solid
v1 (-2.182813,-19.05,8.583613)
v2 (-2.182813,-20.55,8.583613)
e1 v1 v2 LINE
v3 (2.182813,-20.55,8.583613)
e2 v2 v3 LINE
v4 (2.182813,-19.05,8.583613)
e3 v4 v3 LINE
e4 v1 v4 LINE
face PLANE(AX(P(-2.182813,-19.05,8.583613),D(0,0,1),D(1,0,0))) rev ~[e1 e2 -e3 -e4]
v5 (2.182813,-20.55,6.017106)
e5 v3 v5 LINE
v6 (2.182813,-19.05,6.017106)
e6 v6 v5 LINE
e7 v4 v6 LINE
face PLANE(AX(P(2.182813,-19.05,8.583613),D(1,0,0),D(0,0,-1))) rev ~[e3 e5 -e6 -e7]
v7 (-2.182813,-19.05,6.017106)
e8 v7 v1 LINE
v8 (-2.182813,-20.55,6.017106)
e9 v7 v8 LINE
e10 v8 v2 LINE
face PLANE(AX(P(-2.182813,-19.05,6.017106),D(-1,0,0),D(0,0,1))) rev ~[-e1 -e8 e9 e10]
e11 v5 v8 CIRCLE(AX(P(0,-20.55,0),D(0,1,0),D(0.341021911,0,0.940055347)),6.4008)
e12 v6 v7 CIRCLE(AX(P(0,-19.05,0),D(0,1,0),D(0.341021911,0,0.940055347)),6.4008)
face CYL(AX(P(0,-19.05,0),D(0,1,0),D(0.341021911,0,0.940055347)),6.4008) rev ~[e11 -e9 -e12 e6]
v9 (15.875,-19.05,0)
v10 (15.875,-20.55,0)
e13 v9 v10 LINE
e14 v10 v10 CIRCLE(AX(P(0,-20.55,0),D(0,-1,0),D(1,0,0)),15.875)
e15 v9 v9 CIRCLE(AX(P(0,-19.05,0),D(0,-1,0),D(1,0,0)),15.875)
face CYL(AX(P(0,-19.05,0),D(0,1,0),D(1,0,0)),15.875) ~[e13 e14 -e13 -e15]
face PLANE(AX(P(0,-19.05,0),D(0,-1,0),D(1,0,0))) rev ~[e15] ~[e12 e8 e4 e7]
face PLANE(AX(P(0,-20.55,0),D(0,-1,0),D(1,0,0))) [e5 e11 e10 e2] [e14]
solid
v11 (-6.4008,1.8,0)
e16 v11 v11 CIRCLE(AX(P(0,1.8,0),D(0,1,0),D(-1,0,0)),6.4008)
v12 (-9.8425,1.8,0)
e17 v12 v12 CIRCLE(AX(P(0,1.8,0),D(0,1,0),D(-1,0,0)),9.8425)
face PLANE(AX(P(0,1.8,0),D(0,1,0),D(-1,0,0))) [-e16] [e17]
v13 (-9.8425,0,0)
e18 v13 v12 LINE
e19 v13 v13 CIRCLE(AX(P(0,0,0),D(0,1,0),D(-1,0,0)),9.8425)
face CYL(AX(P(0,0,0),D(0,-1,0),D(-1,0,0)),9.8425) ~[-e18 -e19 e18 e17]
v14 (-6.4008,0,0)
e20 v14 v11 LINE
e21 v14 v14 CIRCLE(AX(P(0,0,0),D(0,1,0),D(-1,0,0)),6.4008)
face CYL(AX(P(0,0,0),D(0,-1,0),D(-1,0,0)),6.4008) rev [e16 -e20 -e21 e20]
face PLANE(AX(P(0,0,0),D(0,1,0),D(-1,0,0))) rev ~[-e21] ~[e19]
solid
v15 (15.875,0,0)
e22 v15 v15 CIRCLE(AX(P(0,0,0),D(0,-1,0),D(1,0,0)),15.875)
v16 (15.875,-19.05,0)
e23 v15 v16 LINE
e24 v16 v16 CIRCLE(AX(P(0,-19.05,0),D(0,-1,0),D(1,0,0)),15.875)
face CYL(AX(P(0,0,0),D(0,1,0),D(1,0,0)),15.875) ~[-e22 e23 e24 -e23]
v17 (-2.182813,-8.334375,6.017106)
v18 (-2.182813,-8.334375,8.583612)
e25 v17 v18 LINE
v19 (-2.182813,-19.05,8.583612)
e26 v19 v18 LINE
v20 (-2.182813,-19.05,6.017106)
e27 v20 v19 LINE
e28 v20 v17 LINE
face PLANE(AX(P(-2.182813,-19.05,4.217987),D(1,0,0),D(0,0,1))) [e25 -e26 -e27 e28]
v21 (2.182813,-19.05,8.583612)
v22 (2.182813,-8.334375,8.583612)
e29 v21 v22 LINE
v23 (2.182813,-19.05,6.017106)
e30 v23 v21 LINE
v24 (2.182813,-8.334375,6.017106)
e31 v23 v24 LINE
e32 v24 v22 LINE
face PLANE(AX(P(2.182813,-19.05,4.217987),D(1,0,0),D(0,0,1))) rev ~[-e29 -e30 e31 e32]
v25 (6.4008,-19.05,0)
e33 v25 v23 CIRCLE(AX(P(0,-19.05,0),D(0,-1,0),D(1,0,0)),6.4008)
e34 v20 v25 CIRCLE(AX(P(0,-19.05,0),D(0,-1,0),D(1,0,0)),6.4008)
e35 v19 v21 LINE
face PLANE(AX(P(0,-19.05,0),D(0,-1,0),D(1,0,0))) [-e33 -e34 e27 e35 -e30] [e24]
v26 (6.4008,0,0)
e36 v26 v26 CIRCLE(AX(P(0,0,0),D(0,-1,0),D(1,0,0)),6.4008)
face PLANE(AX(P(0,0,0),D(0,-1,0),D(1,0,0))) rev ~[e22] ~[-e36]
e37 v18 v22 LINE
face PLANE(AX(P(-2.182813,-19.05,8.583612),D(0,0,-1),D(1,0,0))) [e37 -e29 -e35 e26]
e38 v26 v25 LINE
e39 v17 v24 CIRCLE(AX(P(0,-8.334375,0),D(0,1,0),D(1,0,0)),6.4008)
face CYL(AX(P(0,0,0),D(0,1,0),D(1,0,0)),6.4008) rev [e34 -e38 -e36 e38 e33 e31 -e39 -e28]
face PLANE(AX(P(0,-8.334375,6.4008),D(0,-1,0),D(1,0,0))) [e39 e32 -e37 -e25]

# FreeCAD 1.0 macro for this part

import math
import FreeCAD as App
import Part
import Sketcher
Q = App.Units.Quantity

doc = App.newDocument("Part")
body = doc.addObject("PartDesign::Body", "Body")

# Sketch on XZ plane
sketch1 = body.newObject("Sketcher::SketchObject", "Sketch")
sketch1.AttachmentSupport = (doc.getObject("XZ_Plane"), [""])
sketch1.MapMode = "FlatFace"
sketch1.addGeometry(Part.Circle(App.Vector(0, 0, 0), App.Vector(0, 0, 1), 16), False)
sketch1.addGeometry(Part.Circle(App.Vector(0, 0, 0), App.Vector(0, 0, 1), 6), False)
sketch1.addConstraint(Sketcher.Constraint("Coincident", 0, 3, -1, 1))
sketch1.addConstraint(Sketcher.Constraint("Coincident", 1, 3, -1, 1))
sketch1.addConstraint(Sketcher.Constraint("Diameter", 0, Q("1.25 in")))
sketch1.addConstraint(Sketcher.Constraint("Diameter", 1, Q("0.504 in")))
pad1 = body.newObject("PartDesign::Pad", "Pad")
pad1.Profile = sketch1
pad1.Length = Q("0.75 in")

# Sketch on XZ plane
sketch2 = body.newObject("Sketcher::SketchObject", "Sketch001")
sketch2.AttachmentSupport = (doc.getObject("XZ_Plane"), [""])
sketch2.MapMode = "FlatFace"
sketch2.AttachmentOffset = App.Placement(App.Vector(0, 0, 0.75 * 25.4), App.Rotation())
sketch2.addGeometry(Part.LineSegment(App.Vector(-2.2, 8.6, 0), App.Vector(-2.2, 4.2, 0)), False)
sketch2.addGeometry(Part.LineSegment(App.Vector(-2.2, 4.2, 0), App.Vector(2.2, 4.2, 0)), False)
sketch2.addGeometry(Part.LineSegment(App.Vector(2.2, 4.2, 0), App.Vector(2.2, 8.6, 0)), False)
sketch2.addGeometry(Part.LineSegment(App.Vector(2.2, 8.6, 0), App.Vector(-2.2, 8.6, 0)), False)
sketch2.addConstraint(Sketcher.Constraint("Coincident", 0, 2, 1, 1))
sketch2.addConstraint(Sketcher.Constraint("Coincident", 1, 2, 2, 1))
sketch2.addConstraint(Sketcher.Constraint("Coincident", 2, 2, 3, 1))
sketch2.addConstraint(Sketcher.Constraint("Coincident", 3, 2, 0, 1))
sketch2.addConstraint(Sketcher.Constraint("Vertical", 0))
sketch2.addConstraint(Sketcher.Constraint("Horizontal", 1))
sketch2.addConstraint(Sketcher.Constraint("Vertical", 2))
sketch2.addConstraint(Sketcher.Constraint("Horizontal", 3))
sketch2.addConstraint(Sketcher.Constraint("Equal", 3, 0))
sketch2.addConstraint(Sketcher.Constraint("DistanceX", 1, 1, 1, 2, Q("0.171875 in")))
sketch2.addConstraint(Sketcher.Constraint("DistanceX", 0, 2, -1, 1, 2.182813))
sketch2.addConstraint(Sketcher.Constraint("DistanceY", -1, 1, 0, 2, 4.217987))
pocket1 = body.newObject("PartDesign::Pocket", "Pocket")
pocket1.Profile = sketch2
pocket1.Length = Q("0.421875 in")
body2 = doc.addObject("PartDesign::Body", "Body001")

# Sketch on XZ plane
sketch3 = body2.newObject("Sketcher::SketchObject", "Sketch002")
sketch3.AttachmentSupport = (doc.getObject("XZ_Plane001"), [""])
sketch3.MapMode = "FlatFace"
sketch3.AttachmentOffset = App.Placement(App.Vector(0, 0, 0.75 * 25.4), App.Rotation())
sketch3.addGeometry(Part.Circle(App.Vector(0, 0, 0), App.Vector(0, 0, 1), 15.9), False)
sketch3.addGeometry(Part.LineSegment(App.Vector(2.2, 8.6, 0), App.Vector(2.2, 6, 0)), False)
sketch3.addGeometry(Part.ArcOfCircle(Part.Circle(App.Vector(0, 0, 0), App.Vector(0, 0, 1), 6.4), math.radians(110), math.radians(430)), False)
sketch3.addGeometry(Part.LineSegment(App.Vector(-2.2, 6, 0), App.Vector(-2.2, 8.6, 0)), False)
sketch3.addGeometry(Part.LineSegment(App.Vector(-2.2, 8.6, 0), App.Vector(2.2, 8.6, 0)), False)
sketch3.addConstraint(Sketcher.Constraint("Coincident", 1, 2, 2, 2))
sketch3.addConstraint(Sketcher.Constraint("Coincident", 2, 1, 3, 1))
sketch3.addConstraint(Sketcher.Constraint("Coincident", 3, 2, 4, 1))
sketch3.addConstraint(Sketcher.Constraint("Coincident", 4, 2, 1, 1))
sketch3.addConstraint(Sketcher.Constraint("Vertical", 1))
sketch3.addConstraint(Sketcher.Constraint("Vertical", 3))
sketch3.addConstraint(Sketcher.Constraint("Horizontal", 4))
sketch3.addConstraint(Sketcher.Constraint("Coincident", 0, 3, -1, 1))
sketch3.addConstraint(Sketcher.Constraint("Coincident", 2, 3, -1, 1))
sketch3.addConstraint(Sketcher.Constraint("Horizontal", 1, 2, 2, 1))
sketch3.addConstraint(Sketcher.Constraint("Diameter", 0, Q("1.25 in")))
sketch3.addConstraint(Sketcher.Constraint("Radius", 2, Q("0.252 in")))
sketch3.addConstraint(Sketcher.Constraint("DistanceX", 4, 1, 4, 2, Q("0.171875 in")))
sketch3.addConstraint(Sketcher.Constraint("DistanceY", 1, 2, 1, 1, 2.566507))
pad2 = body2.newObject("PartDesign::Pad", "Pad001")
pad2.Profile = sketch3
pad2.Length = 1.5
body3 = doc.addObject("PartDesign::Body", "Body002")

# Sketch on XZ plane
sketch4 = body3.newObject("Sketcher::SketchObject", "Sketch003")
sketch4.AttachmentSupport = (doc.getObject("XZ_Plane002"), [""])
sketch4.MapMode = "FlatFace"
sketch4.addGeometry(Part.Circle(App.Vector(0, 0, 0), App.Vector(0, 0, 1), 10), False)
sketch4.addGeometry(Part.Circle(App.Vector(0, 0, 0), App.Vector(0, 0, 1), 6), False)
sketch4.addConstraint(Sketcher.Constraint("Coincident", 0, 3, -1, 1))
sketch4.addConstraint(Sketcher.Constraint("Coincident", 1, 3, -1, 1))
sketch4.addConstraint(Sketcher.Constraint("Diameter", 0, Q("0.775 in")))
sketch4.addConstraint(Sketcher.Constraint("Diameter", 1, Q("0.504 in")))
pad3 = body3.newObject("PartDesign::Pad", "Pad002")
pad3.Profile = sketch4
pad3.Length = 1.8
pad3.Reversed = True

doc.recompute()
